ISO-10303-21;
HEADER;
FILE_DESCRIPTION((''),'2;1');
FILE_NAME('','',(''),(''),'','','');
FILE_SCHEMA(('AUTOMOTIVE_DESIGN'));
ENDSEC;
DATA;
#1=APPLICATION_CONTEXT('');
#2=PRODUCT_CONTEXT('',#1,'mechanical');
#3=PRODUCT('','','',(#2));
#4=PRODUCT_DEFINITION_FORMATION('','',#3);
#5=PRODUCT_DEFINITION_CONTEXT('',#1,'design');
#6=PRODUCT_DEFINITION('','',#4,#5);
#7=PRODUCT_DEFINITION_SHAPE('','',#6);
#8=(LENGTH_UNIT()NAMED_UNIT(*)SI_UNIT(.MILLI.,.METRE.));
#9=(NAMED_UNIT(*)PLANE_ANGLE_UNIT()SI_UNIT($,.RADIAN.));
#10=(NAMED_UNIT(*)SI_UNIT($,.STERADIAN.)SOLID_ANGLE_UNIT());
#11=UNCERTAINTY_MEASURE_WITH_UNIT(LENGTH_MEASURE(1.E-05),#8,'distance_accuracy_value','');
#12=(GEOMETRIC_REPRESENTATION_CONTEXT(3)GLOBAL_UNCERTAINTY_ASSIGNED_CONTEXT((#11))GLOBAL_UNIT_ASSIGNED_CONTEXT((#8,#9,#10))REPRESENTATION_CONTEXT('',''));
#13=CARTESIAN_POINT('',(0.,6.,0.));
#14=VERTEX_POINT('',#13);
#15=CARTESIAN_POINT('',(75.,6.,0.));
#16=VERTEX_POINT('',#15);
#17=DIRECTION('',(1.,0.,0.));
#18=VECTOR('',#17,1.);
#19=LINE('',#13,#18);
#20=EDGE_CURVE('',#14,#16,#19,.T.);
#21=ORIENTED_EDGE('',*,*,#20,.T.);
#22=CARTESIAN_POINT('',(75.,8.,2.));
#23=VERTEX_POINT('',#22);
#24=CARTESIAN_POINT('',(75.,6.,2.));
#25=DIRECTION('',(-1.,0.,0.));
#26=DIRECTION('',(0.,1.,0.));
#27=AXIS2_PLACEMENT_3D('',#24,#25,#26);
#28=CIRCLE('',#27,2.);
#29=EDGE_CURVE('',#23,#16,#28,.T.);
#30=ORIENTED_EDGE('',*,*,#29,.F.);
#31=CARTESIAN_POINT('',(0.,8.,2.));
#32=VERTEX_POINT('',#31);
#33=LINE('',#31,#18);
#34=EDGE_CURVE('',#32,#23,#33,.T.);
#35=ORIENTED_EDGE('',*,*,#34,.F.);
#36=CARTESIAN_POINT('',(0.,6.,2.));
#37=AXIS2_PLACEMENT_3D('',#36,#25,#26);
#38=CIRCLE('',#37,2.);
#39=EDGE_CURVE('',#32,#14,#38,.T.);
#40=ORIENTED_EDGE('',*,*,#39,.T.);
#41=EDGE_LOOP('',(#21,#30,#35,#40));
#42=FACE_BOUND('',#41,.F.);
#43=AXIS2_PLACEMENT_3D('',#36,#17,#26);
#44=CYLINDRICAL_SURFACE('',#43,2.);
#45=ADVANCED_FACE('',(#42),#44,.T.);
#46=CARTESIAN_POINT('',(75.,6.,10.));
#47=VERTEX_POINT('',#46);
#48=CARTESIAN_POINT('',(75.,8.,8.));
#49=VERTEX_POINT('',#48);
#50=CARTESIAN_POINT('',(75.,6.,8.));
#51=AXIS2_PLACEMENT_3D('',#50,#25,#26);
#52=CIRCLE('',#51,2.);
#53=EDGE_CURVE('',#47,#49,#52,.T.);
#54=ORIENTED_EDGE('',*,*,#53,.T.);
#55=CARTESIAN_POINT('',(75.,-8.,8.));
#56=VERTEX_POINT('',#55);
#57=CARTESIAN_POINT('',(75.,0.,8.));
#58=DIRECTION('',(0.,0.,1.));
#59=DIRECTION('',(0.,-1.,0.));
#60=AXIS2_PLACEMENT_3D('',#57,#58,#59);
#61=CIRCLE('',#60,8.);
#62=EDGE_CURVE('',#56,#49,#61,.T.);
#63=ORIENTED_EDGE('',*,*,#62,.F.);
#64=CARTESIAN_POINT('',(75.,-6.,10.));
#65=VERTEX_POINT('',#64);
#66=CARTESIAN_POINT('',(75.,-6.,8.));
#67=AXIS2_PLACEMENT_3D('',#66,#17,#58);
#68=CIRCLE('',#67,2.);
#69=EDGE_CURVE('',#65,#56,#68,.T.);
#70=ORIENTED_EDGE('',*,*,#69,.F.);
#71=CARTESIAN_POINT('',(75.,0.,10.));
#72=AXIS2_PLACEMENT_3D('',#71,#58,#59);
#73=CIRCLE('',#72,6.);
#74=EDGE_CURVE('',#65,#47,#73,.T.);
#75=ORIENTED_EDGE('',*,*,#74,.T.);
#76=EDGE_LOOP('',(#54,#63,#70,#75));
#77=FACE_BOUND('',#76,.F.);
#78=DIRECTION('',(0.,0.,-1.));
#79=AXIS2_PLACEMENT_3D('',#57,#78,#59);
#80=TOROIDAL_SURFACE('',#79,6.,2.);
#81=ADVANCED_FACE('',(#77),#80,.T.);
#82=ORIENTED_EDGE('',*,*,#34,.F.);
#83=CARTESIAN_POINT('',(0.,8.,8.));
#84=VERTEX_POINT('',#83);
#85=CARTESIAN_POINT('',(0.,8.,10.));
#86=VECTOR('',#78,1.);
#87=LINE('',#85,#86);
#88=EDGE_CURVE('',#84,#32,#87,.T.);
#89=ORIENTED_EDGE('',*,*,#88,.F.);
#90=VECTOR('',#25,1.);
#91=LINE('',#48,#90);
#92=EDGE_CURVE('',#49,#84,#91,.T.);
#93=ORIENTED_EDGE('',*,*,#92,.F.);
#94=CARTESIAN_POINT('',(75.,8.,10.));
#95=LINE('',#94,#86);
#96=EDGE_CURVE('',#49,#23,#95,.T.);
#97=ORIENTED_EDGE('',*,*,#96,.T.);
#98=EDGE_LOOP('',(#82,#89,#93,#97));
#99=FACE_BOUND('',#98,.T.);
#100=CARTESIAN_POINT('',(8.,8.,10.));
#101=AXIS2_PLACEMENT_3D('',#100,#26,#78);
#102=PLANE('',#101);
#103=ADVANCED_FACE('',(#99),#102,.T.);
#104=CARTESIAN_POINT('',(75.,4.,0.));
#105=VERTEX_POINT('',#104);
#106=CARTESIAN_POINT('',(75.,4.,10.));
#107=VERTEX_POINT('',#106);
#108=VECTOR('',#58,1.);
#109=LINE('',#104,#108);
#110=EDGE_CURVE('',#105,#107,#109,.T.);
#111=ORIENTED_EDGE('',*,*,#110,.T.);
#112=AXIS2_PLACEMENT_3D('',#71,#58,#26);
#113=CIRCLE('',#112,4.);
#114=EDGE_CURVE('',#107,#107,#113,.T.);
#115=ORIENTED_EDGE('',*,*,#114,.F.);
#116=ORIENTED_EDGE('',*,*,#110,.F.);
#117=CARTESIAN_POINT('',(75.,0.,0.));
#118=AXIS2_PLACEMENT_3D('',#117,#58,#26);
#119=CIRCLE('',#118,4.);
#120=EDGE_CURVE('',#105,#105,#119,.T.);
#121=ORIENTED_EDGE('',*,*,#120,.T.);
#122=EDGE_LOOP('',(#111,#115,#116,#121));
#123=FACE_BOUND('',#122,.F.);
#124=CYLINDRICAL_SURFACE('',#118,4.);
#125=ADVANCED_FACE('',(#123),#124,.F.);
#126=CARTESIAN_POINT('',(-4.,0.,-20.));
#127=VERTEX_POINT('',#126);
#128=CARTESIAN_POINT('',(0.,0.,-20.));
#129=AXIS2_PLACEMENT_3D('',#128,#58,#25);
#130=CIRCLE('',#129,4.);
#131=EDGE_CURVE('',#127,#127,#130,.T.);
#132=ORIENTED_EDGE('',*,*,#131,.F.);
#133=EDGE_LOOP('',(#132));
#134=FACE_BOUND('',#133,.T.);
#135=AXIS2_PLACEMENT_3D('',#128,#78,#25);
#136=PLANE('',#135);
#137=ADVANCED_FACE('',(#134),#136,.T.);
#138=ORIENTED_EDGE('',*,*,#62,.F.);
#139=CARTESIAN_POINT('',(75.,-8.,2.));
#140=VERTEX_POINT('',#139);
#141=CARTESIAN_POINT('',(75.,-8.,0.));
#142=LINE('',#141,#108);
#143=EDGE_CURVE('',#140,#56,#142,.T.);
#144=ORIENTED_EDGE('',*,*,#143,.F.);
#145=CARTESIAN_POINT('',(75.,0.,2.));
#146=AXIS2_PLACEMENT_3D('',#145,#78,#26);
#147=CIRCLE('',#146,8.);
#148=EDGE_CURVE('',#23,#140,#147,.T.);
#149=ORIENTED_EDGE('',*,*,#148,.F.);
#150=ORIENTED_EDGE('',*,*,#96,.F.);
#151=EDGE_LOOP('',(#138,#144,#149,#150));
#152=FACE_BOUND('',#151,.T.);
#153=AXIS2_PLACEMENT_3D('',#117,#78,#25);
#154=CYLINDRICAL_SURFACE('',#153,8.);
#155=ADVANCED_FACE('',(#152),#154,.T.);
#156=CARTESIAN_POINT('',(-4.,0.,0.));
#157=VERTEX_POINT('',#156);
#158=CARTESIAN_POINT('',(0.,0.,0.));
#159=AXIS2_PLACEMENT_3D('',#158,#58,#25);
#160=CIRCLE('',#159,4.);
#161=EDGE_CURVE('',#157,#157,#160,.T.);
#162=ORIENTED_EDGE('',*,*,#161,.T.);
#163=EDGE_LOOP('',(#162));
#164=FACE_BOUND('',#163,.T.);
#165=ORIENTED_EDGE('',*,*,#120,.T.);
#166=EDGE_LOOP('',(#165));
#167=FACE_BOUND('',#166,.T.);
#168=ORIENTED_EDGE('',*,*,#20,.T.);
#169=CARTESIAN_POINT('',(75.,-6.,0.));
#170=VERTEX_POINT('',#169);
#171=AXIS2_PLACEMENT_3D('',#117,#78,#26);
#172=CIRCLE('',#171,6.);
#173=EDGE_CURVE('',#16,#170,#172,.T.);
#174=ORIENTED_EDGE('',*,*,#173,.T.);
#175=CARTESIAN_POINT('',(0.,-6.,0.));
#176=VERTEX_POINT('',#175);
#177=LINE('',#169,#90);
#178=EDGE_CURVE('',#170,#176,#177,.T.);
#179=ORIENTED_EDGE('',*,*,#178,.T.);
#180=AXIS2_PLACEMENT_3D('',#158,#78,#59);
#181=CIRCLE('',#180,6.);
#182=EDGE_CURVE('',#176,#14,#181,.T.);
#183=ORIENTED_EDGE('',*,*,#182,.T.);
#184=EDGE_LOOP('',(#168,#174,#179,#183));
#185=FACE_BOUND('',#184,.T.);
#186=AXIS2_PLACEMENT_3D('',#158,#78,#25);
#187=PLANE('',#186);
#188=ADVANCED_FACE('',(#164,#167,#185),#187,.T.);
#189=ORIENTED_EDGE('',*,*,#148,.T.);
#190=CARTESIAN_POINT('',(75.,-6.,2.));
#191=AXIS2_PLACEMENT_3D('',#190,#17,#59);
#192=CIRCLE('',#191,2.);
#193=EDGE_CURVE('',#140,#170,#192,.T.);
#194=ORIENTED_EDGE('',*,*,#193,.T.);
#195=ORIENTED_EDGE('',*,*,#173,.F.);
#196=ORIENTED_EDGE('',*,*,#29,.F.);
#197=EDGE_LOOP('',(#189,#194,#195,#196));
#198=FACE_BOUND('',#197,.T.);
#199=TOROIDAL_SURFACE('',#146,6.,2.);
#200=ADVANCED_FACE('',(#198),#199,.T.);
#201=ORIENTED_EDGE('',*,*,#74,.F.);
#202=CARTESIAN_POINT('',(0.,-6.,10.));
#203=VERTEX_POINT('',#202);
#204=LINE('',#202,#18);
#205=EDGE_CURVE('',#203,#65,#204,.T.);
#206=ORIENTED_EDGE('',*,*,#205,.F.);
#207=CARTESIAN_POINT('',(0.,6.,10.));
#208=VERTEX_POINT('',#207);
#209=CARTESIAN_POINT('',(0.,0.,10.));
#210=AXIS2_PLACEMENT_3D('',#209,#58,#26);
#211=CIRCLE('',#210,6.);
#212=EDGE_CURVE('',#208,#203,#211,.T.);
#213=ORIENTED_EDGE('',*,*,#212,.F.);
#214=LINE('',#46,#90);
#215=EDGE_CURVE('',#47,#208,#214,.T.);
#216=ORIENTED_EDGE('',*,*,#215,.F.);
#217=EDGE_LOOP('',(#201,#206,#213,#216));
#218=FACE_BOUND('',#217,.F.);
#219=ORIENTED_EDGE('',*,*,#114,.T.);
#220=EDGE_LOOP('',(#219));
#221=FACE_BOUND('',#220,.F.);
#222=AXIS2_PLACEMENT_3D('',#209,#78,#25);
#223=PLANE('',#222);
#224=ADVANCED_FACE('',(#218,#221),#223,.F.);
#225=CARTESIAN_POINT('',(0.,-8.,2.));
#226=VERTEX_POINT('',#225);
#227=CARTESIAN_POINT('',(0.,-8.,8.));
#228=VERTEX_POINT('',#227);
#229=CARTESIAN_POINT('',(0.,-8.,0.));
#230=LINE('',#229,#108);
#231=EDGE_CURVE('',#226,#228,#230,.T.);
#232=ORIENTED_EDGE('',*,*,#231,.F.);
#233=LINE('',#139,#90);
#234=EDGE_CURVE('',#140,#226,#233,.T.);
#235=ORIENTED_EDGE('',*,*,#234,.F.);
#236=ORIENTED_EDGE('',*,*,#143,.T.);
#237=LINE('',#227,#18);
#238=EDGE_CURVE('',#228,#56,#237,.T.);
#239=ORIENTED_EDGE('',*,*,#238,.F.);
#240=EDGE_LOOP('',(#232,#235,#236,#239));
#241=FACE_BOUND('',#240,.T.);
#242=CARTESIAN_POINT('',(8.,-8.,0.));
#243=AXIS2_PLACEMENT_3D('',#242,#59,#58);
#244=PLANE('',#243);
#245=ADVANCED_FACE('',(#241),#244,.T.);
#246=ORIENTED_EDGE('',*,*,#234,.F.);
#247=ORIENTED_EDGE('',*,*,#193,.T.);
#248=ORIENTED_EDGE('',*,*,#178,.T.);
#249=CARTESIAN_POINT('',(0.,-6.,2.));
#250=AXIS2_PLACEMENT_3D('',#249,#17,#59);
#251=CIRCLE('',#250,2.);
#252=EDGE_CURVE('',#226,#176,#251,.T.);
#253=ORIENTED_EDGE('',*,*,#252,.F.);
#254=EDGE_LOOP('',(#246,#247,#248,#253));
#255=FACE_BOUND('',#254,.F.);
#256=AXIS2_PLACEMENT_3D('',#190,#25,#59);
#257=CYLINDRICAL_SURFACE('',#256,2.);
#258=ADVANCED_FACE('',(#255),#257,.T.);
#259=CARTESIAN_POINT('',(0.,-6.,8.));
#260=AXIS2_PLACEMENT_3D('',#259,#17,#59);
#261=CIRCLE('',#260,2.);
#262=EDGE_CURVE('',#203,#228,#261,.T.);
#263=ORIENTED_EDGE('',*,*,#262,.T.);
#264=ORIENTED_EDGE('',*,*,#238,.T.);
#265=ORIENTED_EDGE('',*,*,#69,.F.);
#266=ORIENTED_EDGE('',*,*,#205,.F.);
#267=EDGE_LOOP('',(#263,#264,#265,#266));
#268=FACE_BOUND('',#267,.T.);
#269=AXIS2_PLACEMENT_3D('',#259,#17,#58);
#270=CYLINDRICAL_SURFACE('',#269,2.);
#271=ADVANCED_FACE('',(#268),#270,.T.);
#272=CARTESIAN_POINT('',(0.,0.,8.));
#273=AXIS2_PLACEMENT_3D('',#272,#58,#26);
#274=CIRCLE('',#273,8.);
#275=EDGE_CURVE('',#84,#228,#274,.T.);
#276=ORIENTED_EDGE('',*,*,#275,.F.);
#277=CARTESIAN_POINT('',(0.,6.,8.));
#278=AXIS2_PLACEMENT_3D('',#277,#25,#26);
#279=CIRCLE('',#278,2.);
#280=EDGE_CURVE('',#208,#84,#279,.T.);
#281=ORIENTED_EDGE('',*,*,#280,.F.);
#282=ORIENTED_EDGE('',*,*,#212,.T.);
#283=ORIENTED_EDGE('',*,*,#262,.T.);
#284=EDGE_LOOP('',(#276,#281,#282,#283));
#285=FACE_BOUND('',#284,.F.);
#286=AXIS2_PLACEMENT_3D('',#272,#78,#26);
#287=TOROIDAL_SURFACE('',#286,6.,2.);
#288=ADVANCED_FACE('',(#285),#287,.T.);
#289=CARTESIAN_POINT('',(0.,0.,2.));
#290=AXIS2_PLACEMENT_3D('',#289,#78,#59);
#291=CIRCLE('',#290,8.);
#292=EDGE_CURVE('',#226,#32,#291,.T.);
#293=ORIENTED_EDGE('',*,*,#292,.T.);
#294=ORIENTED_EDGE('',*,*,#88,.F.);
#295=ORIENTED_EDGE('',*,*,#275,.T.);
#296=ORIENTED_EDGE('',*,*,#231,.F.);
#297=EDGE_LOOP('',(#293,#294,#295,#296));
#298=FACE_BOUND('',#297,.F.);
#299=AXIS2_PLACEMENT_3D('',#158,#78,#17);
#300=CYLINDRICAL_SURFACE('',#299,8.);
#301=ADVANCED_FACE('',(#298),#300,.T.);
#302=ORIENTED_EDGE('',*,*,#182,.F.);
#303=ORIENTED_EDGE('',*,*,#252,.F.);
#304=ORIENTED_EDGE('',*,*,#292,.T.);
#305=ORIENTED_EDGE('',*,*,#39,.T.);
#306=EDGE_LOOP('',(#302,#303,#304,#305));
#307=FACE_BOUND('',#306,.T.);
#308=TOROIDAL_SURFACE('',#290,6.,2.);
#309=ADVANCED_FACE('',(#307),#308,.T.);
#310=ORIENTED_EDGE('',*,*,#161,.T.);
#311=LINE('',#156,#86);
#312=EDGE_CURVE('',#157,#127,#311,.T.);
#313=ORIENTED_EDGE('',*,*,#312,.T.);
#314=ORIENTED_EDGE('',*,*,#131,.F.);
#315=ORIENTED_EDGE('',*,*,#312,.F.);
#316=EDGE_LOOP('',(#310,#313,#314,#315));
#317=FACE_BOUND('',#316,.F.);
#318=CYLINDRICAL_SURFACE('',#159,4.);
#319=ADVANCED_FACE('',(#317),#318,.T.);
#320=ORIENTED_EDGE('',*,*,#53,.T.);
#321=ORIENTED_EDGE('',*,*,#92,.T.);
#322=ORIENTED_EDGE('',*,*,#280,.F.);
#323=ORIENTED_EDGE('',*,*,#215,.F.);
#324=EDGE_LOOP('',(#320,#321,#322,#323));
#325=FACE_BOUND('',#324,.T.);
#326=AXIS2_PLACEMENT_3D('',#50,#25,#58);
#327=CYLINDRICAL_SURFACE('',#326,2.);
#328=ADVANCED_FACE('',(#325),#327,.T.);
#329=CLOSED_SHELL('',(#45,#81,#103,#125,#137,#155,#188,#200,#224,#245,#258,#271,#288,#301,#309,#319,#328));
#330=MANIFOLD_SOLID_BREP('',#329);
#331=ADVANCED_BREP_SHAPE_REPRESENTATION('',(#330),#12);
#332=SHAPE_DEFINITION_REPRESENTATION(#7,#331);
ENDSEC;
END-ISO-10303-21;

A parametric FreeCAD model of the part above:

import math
import FreeCAD as App
import Part
import Sketcher


def edges_at(feature, points):
    """Names of the edges that pass closest to the given points."""
    edges = feature.Shape.Edges
    near = lambda p: min(range(len(edges)), key=lambda i: edges[i].distToShape(Part.Vertex(*p))[0])
    return sorted({f"Edge{near(p) + 1}" for p in points})


def add_polygon(sketch, points):
    """Adds a closed chain of lines whose ends are joined by coincident constraints."""
    first, n = sketch.GeometryCount, len(points)
    for a, b in zip(points, points[1:] + points[:1]):
        sketch.addGeometry(Part.LineSegment(App.Vector(*a, 0), App.Vector(*b, 0)), False)
    for i in range(n):
        sketch.addConstraint(Sketcher.Constraint("Coincident", first + i, 2, first + (i + 1) % n, 1))

doc = App.newDocument("Part")
params = doc.addObject("Spreadsheet::Sheet", "Params")
for row, (alias, value) in enumerate([
    ("sketch1_diameter", "16 mm"),
    ("pad1_length", "10 mm"),
    ("sketch2_width", "16 mm"),
    ("sketch2_height", "10 mm"),
    ("pad2_length", "67 mm"),
    ("pad2_length2", "8 mm"),
    ("sketch3_radius", "8 mm"),
    ("pad3_length", "10 mm"),
    ("sketch4_diameter", "8 mm"),
    ("pad4_length", "20 mm"),
    ("sketch5_diameter", "8 mm"),
    ("hole_diameter", "8 mm"),
    ("fillet_radius", "2 mm"),
], start=1):
    params.set(f"A{row}", alias)
    params.set(f"B{row}", "=" + value)
    params.setAlias(f"B{row}", alias)

body = doc.addObject("PartDesign::Body", "Body")

sketch1 = body.newObject("Sketcher::SketchObject", "Sketch")
sketch1.AttachmentSupport = (doc.getObject("XY_Plane"), [""])
sketch1.MapMode = "FlatFace"
sketch1.addGeometry(Part.Circle(App.Vector(0, 0, 0), App.Vector(0, 0, 1), 8), False)
sketch1.addConstraint([
    Sketcher.Constraint("Coincident", 0, 3, -1, 1),
    Sketcher.Constraint("Diameter", 0, 16.0),
])
sketch1.setExpression("Constraints[1]", "Params.sketch1_diameter")
pad1 = body.newObject("PartDesign::Pad", "Pad")
pad1.Profile = sketch1
pad1.setExpression("Length", "Params.pad1_length")

sketch2 = body.newObject("Sketcher::SketchObject", "Sketch001")
sketch2.AttachmentSupport = (doc.getObject("YZ_Plane"), [""])
sketch2.MapMode = "FlatFace"
sketch2.AttachmentOffset = App.Placement(App.Vector(0, 0, 8), App.Rotation())
add_polygon(sketch2, [(8, 0), (8, 10), (-8, 10), (-8, 0)])
sketch2.addConstraint([
    Sketcher.Constraint("Vertical", 0),
    Sketcher.Constraint("Horizontal", 1),
    Sketcher.Constraint("Vertical", 2),
    Sketcher.Constraint("Horizontal", 3),
    Sketcher.Constraint("Symmetric", 2, 2, 3, 2, -1, 1),
    Sketcher.Constraint("DistanceX", 1, 2, 1, 1, 16.0),
    Sketcher.Constraint("DistanceY", 0, 1, 0, 2, 10.0),
])
sketch2.setExpression("Constraints[9]", "Params.sketch2_width")
sketch2.setExpression("Constraints[10]", "Params.sketch2_height")
pad2 = body.newObject("PartDesign::Pad", "Pad001")
pad2.Profile = sketch2
pad2.Type = "TwoLengths"
pad2.setExpression("Length", "Params.pad2_length")
pad2.setExpression("Length2", "Params.pad2_length2")

sketch3 = body.newObject("Sketcher::SketchObject", "Sketch002")
sketch3.AttachmentSupport = (doc.getObject("XY_Plane"), [""])
sketch3.MapMode = "FlatFace"
sketch3.addGeometry([
    Part.LineSegment(App.Vector(75, -8, 0), App.Vector(75, 8, 0)),
    Part.ArcOfCircle(Part.Circle(App.Vector(75, 0, 0), App.Vector(0, 0, 1), 8), math.radians(-90), math.radians(90)),
], False)
sketch3.addConstraint([
    Sketcher.Constraint("Coincident", 0, 1, 1, 1),
    Sketcher.Constraint("Coincident", 1, 2, 0, 2),
    Sketcher.Constraint("Vertical", 0),
    Sketcher.Constraint("PointOnObject", 1, 3, -1),
    Sketcher.Constraint("Vertical", 1, 3, 0, 1),
    Sketcher.Constraint("DistanceX", -1, 1, 1, 3, 75.0),
    Sketcher.Constraint("Radius", 1, 8.0),
])
sketch3.setExpression("Constraints[6]", "Params.sketch3_radius")
pad3 = body.newObject("PartDesign::Pad", "Pad002")
pad3.Profile = sketch3
pad3.setExpression("Length", "Params.pad3_length")

sketch4 = body.newObject("Sketcher::SketchObject", "Sketch003")
sketch4.AttachmentSupport = (doc.getObject("XY_Plane"), [""])
sketch4.MapMode = "FlatFace"
sketch4.addGeometry(Part.Circle(App.Vector(0, 0, 0), App.Vector(0, 0, 1), 4), False)
sketch4.addConstraint([
    Sketcher.Constraint("Coincident", 0, 3, -1, 1),
    Sketcher.Constraint("Diameter", 0, 8.0),
])
sketch4.setExpression("Constraints[1]", "Params.sketch4_diameter")
pad4 = body.newObject("PartDesign::Pad", "Pad003")
pad4.Profile = sketch4
pad4.setExpression("Length", "Params.pad4_length")
pad4.Reversed = True

sketch5 = body.newObject("Sketcher::SketchObject", "Sketch004")
sketch5.AttachmentSupport = (doc.getObject("XY_Plane"), [""])
sketch5.MapMode = "FlatFace"
sketch5.addGeometry(Part.Circle(App.Vector(75, 0, 0), App.Vector(0, 0, 1), 4), False)
sketch5.addConstraint([
    Sketcher.Constraint("PointOnObject", 0, 3, -1),
    Sketcher.Constraint("Diameter", 0, 8.0),
    Sketcher.Constraint("DistanceX", -1, 1, 0, 3, 75.0),
])
sketch5.setExpression("Constraints[1]", "Params.sketch5_diameter")
doc.recompute()
hole = body.newObject("PartDesign::Hole", "Hole")
hole.Profile = sketch5
hole.ThreadType = "None"
hole.setExpression("Diameter", "Params.hole_diameter")
hole.DepthType = "ThroughAll"
hole.Reversed = True
doc.recompute()

fillet = body.newObject("PartDesign::Fillet", "Fillet")
fillet.Base = (hole, edges_at(hole, [
    (-8, 0, 10),
    (37.5, -8, 10),
    (83, 0, 10),
    (37.5, 8, 10),
    (83, 0, 0),
    (37.5, -8, 0),
    (-8, 0, 0),
    (37.5, 8, 0),
]))
fillet.setExpression("Radius", "Params.fillet_radius")

doc.recompute()
